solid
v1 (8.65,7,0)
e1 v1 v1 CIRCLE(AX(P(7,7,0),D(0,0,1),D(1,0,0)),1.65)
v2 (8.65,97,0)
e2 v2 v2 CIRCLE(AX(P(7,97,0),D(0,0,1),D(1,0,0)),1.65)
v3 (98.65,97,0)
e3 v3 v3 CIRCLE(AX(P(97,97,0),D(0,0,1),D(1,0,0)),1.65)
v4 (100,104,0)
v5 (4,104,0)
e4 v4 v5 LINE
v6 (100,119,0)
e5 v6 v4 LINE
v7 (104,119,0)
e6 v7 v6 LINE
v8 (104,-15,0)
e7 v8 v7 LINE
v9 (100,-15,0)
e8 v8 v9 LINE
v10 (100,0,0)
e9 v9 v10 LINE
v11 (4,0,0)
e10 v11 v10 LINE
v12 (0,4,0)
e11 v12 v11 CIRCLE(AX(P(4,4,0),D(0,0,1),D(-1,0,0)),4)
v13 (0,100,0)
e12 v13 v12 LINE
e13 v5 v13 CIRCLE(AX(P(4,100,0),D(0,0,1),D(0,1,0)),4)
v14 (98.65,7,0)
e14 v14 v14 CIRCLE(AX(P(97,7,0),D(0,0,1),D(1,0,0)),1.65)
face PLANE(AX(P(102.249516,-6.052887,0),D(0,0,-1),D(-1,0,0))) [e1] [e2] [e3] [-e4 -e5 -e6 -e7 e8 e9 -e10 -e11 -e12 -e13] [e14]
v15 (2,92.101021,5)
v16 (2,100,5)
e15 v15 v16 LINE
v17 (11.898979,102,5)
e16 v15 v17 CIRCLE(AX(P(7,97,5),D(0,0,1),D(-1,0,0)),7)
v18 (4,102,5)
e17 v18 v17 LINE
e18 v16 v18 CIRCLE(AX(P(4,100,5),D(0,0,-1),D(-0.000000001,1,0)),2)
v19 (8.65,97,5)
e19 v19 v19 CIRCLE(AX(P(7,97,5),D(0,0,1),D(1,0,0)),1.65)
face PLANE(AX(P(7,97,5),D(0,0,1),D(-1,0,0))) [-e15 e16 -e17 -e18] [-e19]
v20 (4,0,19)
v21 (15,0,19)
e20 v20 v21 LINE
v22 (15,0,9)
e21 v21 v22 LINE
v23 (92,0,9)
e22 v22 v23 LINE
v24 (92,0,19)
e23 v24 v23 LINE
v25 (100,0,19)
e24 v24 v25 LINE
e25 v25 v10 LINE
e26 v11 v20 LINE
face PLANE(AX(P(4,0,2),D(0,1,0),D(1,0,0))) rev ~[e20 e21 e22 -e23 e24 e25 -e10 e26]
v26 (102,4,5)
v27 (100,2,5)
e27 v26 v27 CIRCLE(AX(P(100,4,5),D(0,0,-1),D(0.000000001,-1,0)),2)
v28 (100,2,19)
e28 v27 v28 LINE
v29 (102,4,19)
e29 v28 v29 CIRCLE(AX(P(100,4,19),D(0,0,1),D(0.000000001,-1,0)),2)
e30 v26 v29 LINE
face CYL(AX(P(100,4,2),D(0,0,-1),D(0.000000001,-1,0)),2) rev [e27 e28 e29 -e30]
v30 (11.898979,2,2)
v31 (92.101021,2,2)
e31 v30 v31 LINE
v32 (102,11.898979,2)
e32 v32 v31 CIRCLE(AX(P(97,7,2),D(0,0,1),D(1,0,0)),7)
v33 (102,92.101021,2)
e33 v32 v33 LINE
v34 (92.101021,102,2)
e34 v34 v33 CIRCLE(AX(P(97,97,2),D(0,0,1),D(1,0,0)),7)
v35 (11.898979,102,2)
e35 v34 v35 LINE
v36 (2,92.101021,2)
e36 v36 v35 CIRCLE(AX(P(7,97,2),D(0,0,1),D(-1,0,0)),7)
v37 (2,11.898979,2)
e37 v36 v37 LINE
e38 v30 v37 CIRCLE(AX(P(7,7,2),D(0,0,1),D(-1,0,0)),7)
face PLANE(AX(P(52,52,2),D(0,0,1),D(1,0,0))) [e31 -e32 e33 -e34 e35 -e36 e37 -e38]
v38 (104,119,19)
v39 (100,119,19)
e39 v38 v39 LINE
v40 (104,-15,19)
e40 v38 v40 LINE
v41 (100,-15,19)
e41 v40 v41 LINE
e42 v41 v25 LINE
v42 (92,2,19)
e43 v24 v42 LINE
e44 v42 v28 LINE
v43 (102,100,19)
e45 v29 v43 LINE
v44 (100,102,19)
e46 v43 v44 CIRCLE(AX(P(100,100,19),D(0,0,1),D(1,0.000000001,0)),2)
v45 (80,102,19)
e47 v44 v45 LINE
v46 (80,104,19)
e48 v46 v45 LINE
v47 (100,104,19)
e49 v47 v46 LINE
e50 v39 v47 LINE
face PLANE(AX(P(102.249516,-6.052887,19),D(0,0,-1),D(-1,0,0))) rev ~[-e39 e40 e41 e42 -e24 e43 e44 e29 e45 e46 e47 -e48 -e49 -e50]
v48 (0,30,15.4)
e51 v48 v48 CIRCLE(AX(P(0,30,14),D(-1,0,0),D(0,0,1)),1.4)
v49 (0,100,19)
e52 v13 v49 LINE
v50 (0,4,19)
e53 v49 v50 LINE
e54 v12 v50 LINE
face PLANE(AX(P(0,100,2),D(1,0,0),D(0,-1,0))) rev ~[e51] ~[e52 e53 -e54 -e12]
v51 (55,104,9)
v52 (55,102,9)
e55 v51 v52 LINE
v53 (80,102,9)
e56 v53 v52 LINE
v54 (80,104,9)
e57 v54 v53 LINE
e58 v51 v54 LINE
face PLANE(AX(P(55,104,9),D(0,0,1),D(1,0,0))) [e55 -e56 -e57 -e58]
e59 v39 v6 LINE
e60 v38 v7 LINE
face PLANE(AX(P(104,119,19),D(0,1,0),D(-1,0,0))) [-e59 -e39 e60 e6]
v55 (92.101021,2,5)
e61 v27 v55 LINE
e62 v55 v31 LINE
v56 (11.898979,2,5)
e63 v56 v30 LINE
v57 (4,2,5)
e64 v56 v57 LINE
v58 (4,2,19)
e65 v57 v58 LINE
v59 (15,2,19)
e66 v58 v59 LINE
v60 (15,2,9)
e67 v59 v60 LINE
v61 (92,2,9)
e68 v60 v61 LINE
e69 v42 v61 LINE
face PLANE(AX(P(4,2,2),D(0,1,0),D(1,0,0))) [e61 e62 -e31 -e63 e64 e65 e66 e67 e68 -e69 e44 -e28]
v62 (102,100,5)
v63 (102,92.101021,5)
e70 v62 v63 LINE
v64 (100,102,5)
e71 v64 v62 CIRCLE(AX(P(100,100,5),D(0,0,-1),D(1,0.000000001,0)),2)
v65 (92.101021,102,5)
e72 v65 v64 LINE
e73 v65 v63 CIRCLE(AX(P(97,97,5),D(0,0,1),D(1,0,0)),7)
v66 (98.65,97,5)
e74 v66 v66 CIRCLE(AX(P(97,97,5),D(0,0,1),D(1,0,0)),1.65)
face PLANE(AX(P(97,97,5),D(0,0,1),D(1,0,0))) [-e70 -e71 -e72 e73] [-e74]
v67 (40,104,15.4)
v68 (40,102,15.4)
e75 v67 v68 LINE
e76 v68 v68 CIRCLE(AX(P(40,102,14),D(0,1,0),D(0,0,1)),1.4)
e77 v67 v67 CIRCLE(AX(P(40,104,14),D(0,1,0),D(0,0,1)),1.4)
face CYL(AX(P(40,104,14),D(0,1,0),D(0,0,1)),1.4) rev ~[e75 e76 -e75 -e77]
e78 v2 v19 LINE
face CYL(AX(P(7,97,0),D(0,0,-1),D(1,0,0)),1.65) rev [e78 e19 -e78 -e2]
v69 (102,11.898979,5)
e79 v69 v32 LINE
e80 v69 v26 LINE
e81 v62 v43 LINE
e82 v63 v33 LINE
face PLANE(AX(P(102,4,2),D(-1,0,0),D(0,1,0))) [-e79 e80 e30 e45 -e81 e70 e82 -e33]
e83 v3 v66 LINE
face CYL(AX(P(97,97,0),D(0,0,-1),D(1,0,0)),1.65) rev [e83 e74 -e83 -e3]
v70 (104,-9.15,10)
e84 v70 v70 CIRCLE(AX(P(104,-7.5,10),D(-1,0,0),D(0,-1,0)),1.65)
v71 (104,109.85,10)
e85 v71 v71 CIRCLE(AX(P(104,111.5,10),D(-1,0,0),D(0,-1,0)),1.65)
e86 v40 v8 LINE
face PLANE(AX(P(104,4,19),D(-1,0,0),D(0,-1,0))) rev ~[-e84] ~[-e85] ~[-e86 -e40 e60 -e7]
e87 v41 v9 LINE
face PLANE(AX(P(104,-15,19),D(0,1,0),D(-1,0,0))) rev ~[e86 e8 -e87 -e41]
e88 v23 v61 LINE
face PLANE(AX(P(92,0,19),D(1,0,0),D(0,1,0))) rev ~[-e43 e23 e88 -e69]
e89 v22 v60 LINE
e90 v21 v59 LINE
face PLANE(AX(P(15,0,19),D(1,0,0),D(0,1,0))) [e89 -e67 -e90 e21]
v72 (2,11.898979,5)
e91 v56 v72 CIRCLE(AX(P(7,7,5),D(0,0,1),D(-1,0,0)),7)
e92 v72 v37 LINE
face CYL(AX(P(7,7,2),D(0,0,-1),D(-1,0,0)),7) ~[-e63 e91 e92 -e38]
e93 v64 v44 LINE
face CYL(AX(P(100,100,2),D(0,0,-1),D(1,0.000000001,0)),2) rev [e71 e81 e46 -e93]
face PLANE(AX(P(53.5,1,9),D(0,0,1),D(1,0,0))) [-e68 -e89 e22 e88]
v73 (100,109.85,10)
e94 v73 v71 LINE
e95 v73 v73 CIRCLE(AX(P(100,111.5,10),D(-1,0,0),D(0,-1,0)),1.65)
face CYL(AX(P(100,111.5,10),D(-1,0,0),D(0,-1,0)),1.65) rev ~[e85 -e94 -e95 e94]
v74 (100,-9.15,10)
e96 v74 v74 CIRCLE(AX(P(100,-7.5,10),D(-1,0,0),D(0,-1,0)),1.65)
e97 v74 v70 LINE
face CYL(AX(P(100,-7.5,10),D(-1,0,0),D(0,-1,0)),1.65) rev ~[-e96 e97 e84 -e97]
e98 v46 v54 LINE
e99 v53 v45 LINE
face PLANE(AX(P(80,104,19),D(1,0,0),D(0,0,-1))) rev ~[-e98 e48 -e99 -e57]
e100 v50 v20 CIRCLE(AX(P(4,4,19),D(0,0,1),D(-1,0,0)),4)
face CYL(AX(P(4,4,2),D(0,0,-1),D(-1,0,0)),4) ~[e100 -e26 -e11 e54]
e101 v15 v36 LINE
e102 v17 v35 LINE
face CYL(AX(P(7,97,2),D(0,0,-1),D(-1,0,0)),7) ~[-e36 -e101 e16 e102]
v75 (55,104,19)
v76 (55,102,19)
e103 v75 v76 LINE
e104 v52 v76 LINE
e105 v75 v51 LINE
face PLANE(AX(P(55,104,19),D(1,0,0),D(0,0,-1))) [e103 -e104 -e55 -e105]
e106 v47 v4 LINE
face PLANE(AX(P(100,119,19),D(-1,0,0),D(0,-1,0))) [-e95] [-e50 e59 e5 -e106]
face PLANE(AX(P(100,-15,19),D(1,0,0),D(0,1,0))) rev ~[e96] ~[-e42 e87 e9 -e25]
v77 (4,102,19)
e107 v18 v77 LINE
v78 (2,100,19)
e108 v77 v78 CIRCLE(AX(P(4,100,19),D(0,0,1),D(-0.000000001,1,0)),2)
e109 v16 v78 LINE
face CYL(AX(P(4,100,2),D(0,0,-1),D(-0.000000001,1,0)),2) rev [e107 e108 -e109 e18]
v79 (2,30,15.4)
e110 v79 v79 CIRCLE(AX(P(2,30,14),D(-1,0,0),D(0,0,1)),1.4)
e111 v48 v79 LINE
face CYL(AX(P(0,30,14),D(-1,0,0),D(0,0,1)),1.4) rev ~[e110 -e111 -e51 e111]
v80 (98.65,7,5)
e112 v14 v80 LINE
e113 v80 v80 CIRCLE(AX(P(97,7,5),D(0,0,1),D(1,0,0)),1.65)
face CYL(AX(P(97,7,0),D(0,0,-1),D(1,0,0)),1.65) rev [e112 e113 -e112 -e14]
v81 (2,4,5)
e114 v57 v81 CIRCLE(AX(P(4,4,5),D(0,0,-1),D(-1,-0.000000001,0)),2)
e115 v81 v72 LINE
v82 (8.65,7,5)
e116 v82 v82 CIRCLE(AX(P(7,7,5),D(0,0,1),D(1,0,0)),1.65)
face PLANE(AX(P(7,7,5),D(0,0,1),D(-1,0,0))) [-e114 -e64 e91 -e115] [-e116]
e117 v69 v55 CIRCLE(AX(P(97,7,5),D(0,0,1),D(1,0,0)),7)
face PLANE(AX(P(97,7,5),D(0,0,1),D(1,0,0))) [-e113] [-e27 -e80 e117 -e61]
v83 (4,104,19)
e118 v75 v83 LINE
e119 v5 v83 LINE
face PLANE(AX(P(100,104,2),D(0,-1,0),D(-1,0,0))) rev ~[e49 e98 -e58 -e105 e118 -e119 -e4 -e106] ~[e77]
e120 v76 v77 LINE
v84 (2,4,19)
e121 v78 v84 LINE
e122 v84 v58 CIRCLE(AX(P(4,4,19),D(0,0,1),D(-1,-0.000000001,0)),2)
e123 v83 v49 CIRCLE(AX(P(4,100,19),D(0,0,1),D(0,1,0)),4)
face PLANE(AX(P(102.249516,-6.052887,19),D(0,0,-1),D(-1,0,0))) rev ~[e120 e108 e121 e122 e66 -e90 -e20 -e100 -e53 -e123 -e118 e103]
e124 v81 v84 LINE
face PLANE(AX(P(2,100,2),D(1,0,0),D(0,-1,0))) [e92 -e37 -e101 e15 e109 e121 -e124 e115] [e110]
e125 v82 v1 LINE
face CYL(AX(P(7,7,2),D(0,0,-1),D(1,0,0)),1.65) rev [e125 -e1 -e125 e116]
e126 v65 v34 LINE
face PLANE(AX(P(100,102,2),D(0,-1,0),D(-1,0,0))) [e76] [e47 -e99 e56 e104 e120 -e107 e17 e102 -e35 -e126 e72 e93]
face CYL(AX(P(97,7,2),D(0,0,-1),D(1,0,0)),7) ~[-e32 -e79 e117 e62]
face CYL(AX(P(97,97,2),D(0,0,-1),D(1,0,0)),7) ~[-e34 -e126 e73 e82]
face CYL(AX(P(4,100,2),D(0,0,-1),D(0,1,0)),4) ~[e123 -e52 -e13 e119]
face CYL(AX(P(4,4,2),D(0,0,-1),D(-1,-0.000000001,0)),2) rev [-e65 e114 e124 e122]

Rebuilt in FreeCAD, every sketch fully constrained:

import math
import FreeCAD as App
import Part
import Sketcher


def add_polygon(sketch, points):
    """Adds a closed chain of lines whose ends are joined by coincident constraints."""
    first, n = sketch.GeometryCount, len(points)
    for a, b in zip(points, points[1:] + points[:1]):
        sketch.addGeometry(Part.LineSegment(App.Vector(*a, 0), App.Vector(*b, 0)), False)
    for i in range(n):
        sketch.addConstraint(Sketcher.Constraint("Coincident", first + i, 2, first + (i + 1) % n, 1))

doc = App.newDocument("Part")
body = doc.addObject("PartDesign::Body", "Body")

sketch1 = body.newObject("Sketcher::SketchObject", "Sketch")
sketch1.AttachmentSupport = (doc.getObject("XY_Plane"), [""])
sketch1.MapMode = "FlatFace"
sketch1.addGeometry([
    Part.LineSegment(App.Vector(4, 0, 0), App.Vector(100, 0, 0)),
    Part.ArcOfCircle(Part.Circle(App.Vector(100, 4, 0), App.Vector(0, 0, 1), 4), math.radians(-90), math.radians(0)),
    Part.LineSegment(App.Vector(104, 4, 0), App.Vector(104, 100, 0)),
    Part.ArcOfCircle(Part.Circle(App.Vector(100, 100, 0), App.Vector(0, 0, 1), 4), math.radians(0), math.radians(90)),
    Part.LineSegment(App.Vector(100, 104, 0), App.Vector(4, 104, 0)),
    Part.ArcOfCircle(Part.Circle(App.Vector(4, 100, 0), App.Vector(0, 0, 1), 4), math.radians(90), math.radians(180)),
    Part.LineSegment(App.Vector(0, 100, 0), App.Vector(0, 4, 0)),
    Part.ArcOfCircle(Part.Circle(App.Vector(4, 4, 0), App.Vector(0, 0, 1), 4), math.radians(180), math.radians(270)),
    Part.Circle(App.Vector(7, 7, 0), App.Vector(0, 0, 1), 1.6),
    Part.Circle(App.Vector(97, 7, 0), App.Vector(0, 0, 1), 1.6),
    Part.Circle(App.Vector(7, 97, 0), App.Vector(0, 0, 1), 1.6),
    Part.Circle(App.Vector(97, 97, 0), App.Vector(0, 0, 1), 1.6),
], False)
sketch1.addConstraint([
    Sketcher.Constraint("Tangent", 0, 2, 1, 1),
    Sketcher.Constraint("Tangent", 1, 2, 2, 1),
    Sketcher.Constraint("Tangent", 2, 2, 3, 1),
    Sketcher.Constraint("Tangent", 3, 2, 4, 1),
    Sketcher.Constraint("Tangent", 4, 2, 5, 1),
    Sketcher.Constraint("Tangent", 5, 2, 6, 1),
    Sketcher.Constraint("Tangent", 6, 2, 7, 1),
    Sketcher.Constraint("Tangent", 7, 2, 0, 1),
    Sketcher.Constraint("Horizontal", 0),
    Sketcher.Constraint("Vertical", 2),
    Sketcher.Constraint("Horizontal", 4),
    Sketcher.Constraint("Vertical", 6),
    Sketcher.Constraint("Equal", 1, 3),
    Sketcher.Constraint("Equal", 3, 5),
    Sketcher.Constraint("Equal", 5, 7),
    Sketcher.Constraint("Equal", 8, 9),
    Sketcher.Constraint("Equal", 9, 10),
    Sketcher.Constraint("Equal", 10, 11),
    Sketcher.Constraint("PointOnObject", 0, 2, -1),
    Sketcher.Constraint("PointOnObject", 5, 2, -2),
    Sketcher.Constraint("Horizontal", 8, 3, 9, 3),
    Sketcher.Constraint("Horizontal", 10, 3, 11, 3),
    Sketcher.Constraint("Vertical", 8, 3, 10, 3),
    Sketcher.Constraint("Vertical", 9, 3, 11, 3),
    Sketcher.Constraint("Equal", 4, 2),
    Sketcher.Constraint("Radius", 1, 4.0),
    Sketcher.Constraint("Diameter", 8, 3.3),
    Sketcher.Constraint("DistanceX", 0, 1, 0, 2, 96.0),
    Sketcher.Constraint("DistanceX", -1, 1, 8, 3, 7.0),
    Sketcher.Constraint("DistanceY", -1, 1, 8, 3, 7.0),
    Sketcher.Constraint("DistanceX", -1, 1, 9, 3, 97.0),
    Sketcher.Constraint("DistanceY", -1, 1, 10, 3, 97.0),
])
pad1 = body.newObject("PartDesign::Pad", "Pad")
pad1.Profile = sketch1
pad1.Length = 2

sketch2 = body.newObject("Sketcher::SketchObject", "Sketch001")
sketch2.AttachmentSupport = (doc.getObject("XY_Plane"), [""])
sketch2.MapMode = "FlatFace"
sketch2.AttachmentOffset = App.Placement(App.Vector(0, 0, 2), App.Rotation())
sketch2.addGeometry([
    Part.Circle(App.Vector(7, 7, 0), App.Vector(0, 0, 1), 7),
    Part.Circle(App.Vector(7, 7, 0), App.Vector(0, 0, 1), 1.6),
    Part.Circle(App.Vector(97, 7, 0), App.Vector(0, 0, 1), 7),
    Part.Circle(App.Vector(97, 7, 0), App.Vector(0, 0, 1), 1.6),
    Part.Circle(App.Vector(7, 97, 0), App.Vector(0, 0, 1), 7),
    Part.Circle(App.Vector(7, 97, 0), App.Vector(0, 0, 1), 1.6),
    Part.Circle(App.Vector(97, 97, 0), App.Vector(0, 0, 1), 7),
    Part.Circle(App.Vector(97, 97, 0), App.Vector(0, 0, 1), 1.6),
], False)
sketch2.addConstraint([
    Sketcher.Constraint("Coincident", 1, 3, 0, 3),
    Sketcher.Constraint("Coincident", 3, 3, 2, 3),
    Sketcher.Constraint("Coincident", 5, 3, 4, 3),
    Sketcher.Constraint("Coincident", 7, 3, 6, 3),
    Sketcher.Constraint("Equal", 0, 2),
    Sketcher.Constraint("Equal", 1, 3),
    Sketcher.Constraint("Equal", 2, 4),
    Sketcher.Constraint("Equal", 3, 5),
    Sketcher.Constraint("Equal", 4, 6),
    Sketcher.Constraint("Equal", 5, 7),
    Sketcher.Constraint("Horizontal", 1, 3, 2, 3),
    Sketcher.Constraint("Horizontal", 5, 3, 6, 3),
    Sketcher.Constraint("Vertical", 1, 3, 4, 3),
    Sketcher.Constraint("Vertical", 3, 3, 6, 3),
    Sketcher.Constraint("Diameter", 0, 14.0),
    Sketcher.Constraint("Diameter", 1, 3.3),
    Sketcher.Constraint("DistanceX", -1, 1, 0, 3, 7.0),
    Sketcher.Constraint("DistanceY", -1, 1, 0, 3, 7.0),
    Sketcher.Constraint("DistanceX", -1, 1, 2, 3, 97.0),
    Sketcher.Constraint("DistanceY", -1, 1, 4, 3, 97.0),
])
pad2 = body.newObject("PartDesign::Pad", "Pad001")
pad2.Profile = sketch2
pad2.Length = 3

sketch3 = body.newObject("Sketcher::SketchObject", "Sketch002")
sketch3.AttachmentSupport = (doc.getObject("XY_Plane"), [""])
sketch3.MapMode = "FlatFace"
sketch3.AttachmentOffset = App.Placement(App.Vector(0, 0, 2), App.Rotation())
sketch3.addGeometry([
    Part.LineSegment(App.Vector(100, 104, 0), App.Vector(4, 104, 0)),
    Part.ArcOfCircle(Part.Circle(App.Vector(4, 100, 0), App.Vector(0, 0, 1), 4), math.radians(90), math.radians(180)),
    Part.LineSegment(App.Vector(0, 100, 0), App.Vector(0, 4, 0)),
    Part.ArcOfCircle(Part.Circle(App.Vector(4, 4, 0), App.Vector(0, 0, 1), 4), math.radians(180), math.radians(270)),
    Part.LineSegment(App.Vector(4, 0, 0), App.Vector(100, 0, 0)),
    Part.ArcOfCircle(Part.Circle(App.Vector(100, 4, 0), App.Vector(0, 0, 1), 4), math.radians(-90), math.radians(0)),
    Part.LineSegment(App.Vector(104, 4, 0), App.Vector(104, 100, 0)),
    Part.ArcOfCircle(Part.Circle(App.Vector(100, 100, 0), App.Vector(0, 0, 1), 4), math.radians(0), math.radians(90)),
    Part.LineSegment(App.Vector(4, 102, 0), App.Vector(100, 102, 0)),
    Part.ArcOfCircle(Part.Circle(App.Vector(100, 100, 0), App.Vector(0, 0, 1), 2), math.radians(0), math.radians(90)),
    Part.LineSegment(App.Vector(102, 100, 0), App.Vector(102, 4, 0)),
    Part.ArcOfCircle(Part.Circle(App.Vector(100, 4, 0), App.Vector(0, 0, 1), 2), math.radians(-90), math.radians(0)),
    Part.LineSegment(App.Vector(100, 2, 0), App.Vector(4, 2, 0)),
    Part.ArcOfCircle(Part.Circle(App.Vector(4, 4, 0), App.Vector(0, 0, 1), 2), math.radians(-180), math.radians(-90)),
    Part.LineSegment(App.Vector(2, 4, 0), App.Vector(2, 100, 0)),
    Part.ArcOfCircle(Part.Circle(App.Vector(4, 100, 0), App.Vector(0, 0, 1), 2), math.radians(90), math.radians(180)),
], False)
sketch3.addConstraint([
    Sketcher.Constraint("Tangent", 0, 2, 1, 1),
    Sketcher.Constraint("Tangent", 1, 2, 2, 1),
    Sketcher.Constraint("Tangent", 2, 2, 3, 1),
    Sketcher.Constraint("Tangent", 3, 2, 4, 1),
    Sketcher.Constraint("Tangent", 4, 2, 5, 1),
    Sketcher.Constraint("Tangent", 5, 2, 6, 1),
    Sketcher.Constraint("Tangent", 6, 2, 7, 1),
    Sketcher.Constraint("Tangent", 7, 2, 0, 1),
    Sketcher.Constraint("Tangent", 8, 2, 9, 2),
    Sketcher.Constraint("Tangent", 9, 1, 10, 1),
    Sketcher.Constraint("Tangent", 10, 2, 11, 2),
    Sketcher.Constraint("Tangent", 11, 1, 12, 1),
    Sketcher.Constraint("Tangent", 12, 2, 13, 2),
    Sketcher.Constraint("Tangent", 13, 1, 14, 1),
    Sketcher.Constraint("Tangent", 14, 2, 15, 2),
    Sketcher.Constraint("Tangent", 15, 1, 8, 1),
    Sketcher.Constraint("Horizontal", 0),
    Sketcher.Constraint("Vertical", 2),
    Sketcher.Constraint("Horizontal", 4),
    Sketcher.Constraint("Vertical", 6),
    Sketcher.Constraint("Horizontal", 8),
    Sketcher.Constraint("Vertical", 10),
    Sketcher.Constraint("Horizontal", 12),
    Sketcher.Constraint("Vertical", 14),
    Sketcher.Constraint("Coincident", 9, 3, 7, 3),
    Sketcher.Constraint("Coincident", 11, 3, 5, 3),
    Sketcher.Constraint("Coincident", 13, 3, 3, 3),
    Sketcher.Constraint("Equal", 1, 3),
    Sketcher.Constraint("Equal", 3, 5),
    Sketcher.Constraint("Equal", 5, 7),
    Sketcher.Constraint("Equal", 13, 15),
    Sketcher.Constraint("PointOnObject", 1, 2, -2),
    Sketcher.Constraint("PointOnObject", 3, 2, -1),
    Sketcher.Constraint("Equal", 12, 2),
    Sketcher.Constraint("Radius", 1, 4.0),
    Sketcher.Constraint("Radius", 9, 2.0),
    Sketcher.Constraint("DistanceX", 0, 2, 0, 1, 96.0),
])
pad3 = body.newObject("PartDesign::Pad", "Pad002")
pad3.Profile = sketch3
pad3.Length = 17

sketch4 = body.newObject("Sketcher::SketchObject", "Sketch003")
sketch4.AttachmentSupport = (doc.getObject("XY_Plane"), [""])
sketch4.MapMode = "FlatFace"
sketch4.AttachmentOffset = App.Placement(App.Vector(0, 0, 19), App.Rotation())
sketch4.addGeometry([
    Part.LineSegment(App.Vector(104, -15, 0), App.Vector(104, 4, 0)),
    Part.ArcOfCircle(Part.Circle(App.Vector(100, 4, 0), App.Vector(0, 0, 1), 4), math.radians(-90), math.radians(0)),
    Part.LineSegment(App.Vector(100, 0, 0), App.Vector(100, -15, 0)),
    Part.LineSegment(App.Vector(100, -15, 0), App.Vector(104, -15, 0)),
    Part.LineSegment(App.Vector(104, 100, 0), App.Vector(104, 119, 0)),
    Part.LineSegment(App.Vector(104, 119, 0), App.Vector(100, 119, 0)),
    Part.LineSegment(App.Vector(100, 119, 0), App.Vector(100, 104, 0)),
    Part.ArcOfCircle(Part.Circle(App.Vector(100, 100, 0), App.Vector(0, 0, 1), 4), math.radians(0), math.radians(90)),
], False)
sketch4.addConstraint([
    Sketcher.Constraint("Tangent", 0, 2, 1, 2),
    Sketcher.Constraint("Coincident", 1, 1, 2, 1),
    Sketcher.Constraint("Coincident", 2, 2, 3, 1),
    Sketcher.Constraint("Coincident", 3, 2, 0, 1),
    Sketcher.Constraint("Coincident", 4, 2, 5, 1),
    Sketcher.Constraint("Coincident", 5, 2, 6, 1),
    Sketcher.Constraint("Coincident", 6, 2, 7, 2),
    Sketcher.Constraint("Tangent", 7, 1, 4, 1),
    Sketcher.Constraint("Vertical", 0),
    Sketcher.Constraint("Vertical", 2),
    Sketcher.Constraint("Horizontal", 3),
    Sketcher.Constraint("Vertical", 4),
    Sketcher.Constraint("Horizontal", 5),
    Sketcher.Constraint("Vertical", 6),
    Sketcher.Constraint("Equal", 1, 7),
    Sketcher.Constraint("PointOnObject", 1, 1, -1),
    Sketcher.Constraint("Vertical", 1, 3, 7, 3),
    Sketcher.Constraint("Vertical", 7, 3, 1, 1),
    Sketcher.Constraint("Vertical", 2, 2, 5, 2),
    Sketcher.Constraint("Equal", 0, 4),
    Sketcher.Constraint("Radius", 1, 4.0),
    Sketcher.Constraint("DistanceY", 0, 1, 0, 2, 19.0),
    Sketcher.Constraint("DistanceX", -1, 1, 1, 3, 100.0),
    Sketcher.Constraint("DistanceY", -1, 1, 7, 3, 100.0),
])
pad4 = body.newObject("PartDesign::Pad", "Pad003")
pad4.Profile = sketch4
pad4.Type = "UpToLast"
pad4.Reversed = True

sketch5 = body.newObject("Sketcher::SketchObject", "Sketch004")
sketch5.AttachmentSupport = (doc.getObject("YZ_Plane"), [""])
sketch5.MapMode = "FlatFace"
sketch5.AttachmentOffset = App.Placement(App.Vector(0, 0, 100), App.Rotation())
sketch5.addGeometry([
    Part.Circle(App.Vector(-7.5, 10, 0), App.Vector(0, 0, 1), 1.6),
    Part.Circle(App.Vector(111.5, 10, 0), App.Vector(0, 0, 1), 1.6),
], False)
sketch5.addConstraint([
    Sketcher.Constraint("Equal", 0, 1),
    Sketcher.Constraint("Horizontal", 0, 3, 1, 3),
    Sketcher.Constraint("Diameter", 0, 3.3),
    Sketcher.Constraint("DistanceY", -1, 1, 0, 3, 10.0),
    Sketcher.Constraint("DistanceX", 0, 3, 1, 3, 119.0),
    Sketcher.Constraint("DistanceX", 0, 3, -1, 1, 7.5),
])
pocket1 = body.newObject("PartDesign::Pocket", "Pocket")
pocket1.Profile = sketch5
pocket1.Length = 10
pocket1.Reversed = True

sketch6 = body.newObject("Sketcher::SketchObject", "Sketch005")
sketch6.AttachmentSupport = (doc.getObject("XY_Plane"), [""])
sketch6.MapMode = "FlatFace"
sketch6.AttachmentOffset = App.Placement(App.Vector(0, 0, 19), App.Rotation())
add_polygon(sketch6, [(15, 2), (15, 0), (92, 0), (92, 2)])
sketch6.addConstraint([
    Sketcher.Constraint("Vertical", 0),
    Sketcher.Constraint("Horizontal", 1),
    Sketcher.Constraint("Vertical", 2),
    Sketcher.Constraint("Horizontal", 3),
    Sketcher.Constraint("PointOnObject", 0, 2, -1),
    Sketcher.Constraint("DistanceX", 1, 1, 1, 2, 77.0),
    Sketcher.Constraint("DistanceY", 0, 2, 0, 1, 2.0),
    Sketcher.Constraint("DistanceX", -1, 1, 0, 2, 15.0),
])
pocket2 = body.newObject("PartDesign::Pocket", "Pocket001")
pocket2.Profile = sketch6
pocket2.Length = 10

sketch7 = body.newObject("Sketcher::SketchObject", "Sketch006")
sketch7.AttachmentSupport = (doc.getObject("XZ_Plane"), [""])
sketch7.MapMode = "FlatFace"
sketch7.AttachmentOffset = App.Placement(App.Vector(0, 0, -104), App.Rotation())
add_polygon(sketch7, [(55, 9), (55, 19), (80, 19), (80, 9)])
sketch7.addConstraint([
    Sketcher.Constraint("Vertical", 0),
    Sketcher.Constraint("Horizontal", 1),
    Sketcher.Constraint("Vertical", 2),
    Sketcher.Constraint("Horizontal", 3),
    Sketcher.Constraint("DistanceX", 1, 1, 1, 2, 25.0),
    Sketcher.Constraint("DistanceY", 0, 1, 0, 2, 10.0),
    Sketcher.Constraint("DistanceX", -1, 1, 0, 2, 55.0),
    Sketcher.Constraint("DistanceY", -1, 1, 0, 2, 19.0),
])
pocket3 = body.newObject("PartDesign::Pocket", "Pocket002")
pocket3.Profile = sketch7
pocket3.Length = 10
pocket3.Reversed = True

sketch8 = body.newObject("Sketcher::SketchObject", "Sketch007")
sketch8.AttachmentSupport = (doc.getObject("XZ_Plane"), [""])
sketch8.MapMode = "FlatFace"
sketch8.AttachmentOffset = App.Placement(App.Vector(0, 0, -104), App.Rotation())
sketch8.addGeometry(Part.Circle(App.Vector(40, 14, 0), App.Vector(0, 0, 1), 1.4), False)
sketch8.addConstraint([
    Sketcher.Constraint("Diameter", 0, 2.8),
    Sketcher.Constraint("DistanceX", -1, 1, 0, 3, 40.0),
    Sketcher.Constraint("DistanceY", -1, 1, 0, 3, 14.0),
])
pocket4 = body.newObject("PartDesign::Pocket", "Pocket003")
pocket4.Profile = sketch8
pocket4.Length = 22
pocket4.Reversed = True

sketch9 = body.newObject("Sketcher::SketchObject", "Sketch008")
sketch9.AttachmentSupport = (doc.getObject("YZ_Plane"), [""])
sketch9.MapMode = "FlatFace"
sketch9.addGeometry(Part.Circle(App.Vector(30, 14, 0), App.Vector(0, 0, 1), 1.4), False)
sketch9.addConstraint([
    Sketcher.Constraint("Diameter", 0, 2.8),
    Sketcher.Constraint("DistanceX", -1, 1, 0, 3, 30.0),
    Sketcher.Constraint("DistanceY", -1, 1, 0, 3, 14.0),
])
pocket5 = body.newObject("PartDesign::Pocket", "Pocket004")
pocket5.Profile = sketch9
pocket5.Length = 22
pocket5.Reversed = True

doc.recompute()
